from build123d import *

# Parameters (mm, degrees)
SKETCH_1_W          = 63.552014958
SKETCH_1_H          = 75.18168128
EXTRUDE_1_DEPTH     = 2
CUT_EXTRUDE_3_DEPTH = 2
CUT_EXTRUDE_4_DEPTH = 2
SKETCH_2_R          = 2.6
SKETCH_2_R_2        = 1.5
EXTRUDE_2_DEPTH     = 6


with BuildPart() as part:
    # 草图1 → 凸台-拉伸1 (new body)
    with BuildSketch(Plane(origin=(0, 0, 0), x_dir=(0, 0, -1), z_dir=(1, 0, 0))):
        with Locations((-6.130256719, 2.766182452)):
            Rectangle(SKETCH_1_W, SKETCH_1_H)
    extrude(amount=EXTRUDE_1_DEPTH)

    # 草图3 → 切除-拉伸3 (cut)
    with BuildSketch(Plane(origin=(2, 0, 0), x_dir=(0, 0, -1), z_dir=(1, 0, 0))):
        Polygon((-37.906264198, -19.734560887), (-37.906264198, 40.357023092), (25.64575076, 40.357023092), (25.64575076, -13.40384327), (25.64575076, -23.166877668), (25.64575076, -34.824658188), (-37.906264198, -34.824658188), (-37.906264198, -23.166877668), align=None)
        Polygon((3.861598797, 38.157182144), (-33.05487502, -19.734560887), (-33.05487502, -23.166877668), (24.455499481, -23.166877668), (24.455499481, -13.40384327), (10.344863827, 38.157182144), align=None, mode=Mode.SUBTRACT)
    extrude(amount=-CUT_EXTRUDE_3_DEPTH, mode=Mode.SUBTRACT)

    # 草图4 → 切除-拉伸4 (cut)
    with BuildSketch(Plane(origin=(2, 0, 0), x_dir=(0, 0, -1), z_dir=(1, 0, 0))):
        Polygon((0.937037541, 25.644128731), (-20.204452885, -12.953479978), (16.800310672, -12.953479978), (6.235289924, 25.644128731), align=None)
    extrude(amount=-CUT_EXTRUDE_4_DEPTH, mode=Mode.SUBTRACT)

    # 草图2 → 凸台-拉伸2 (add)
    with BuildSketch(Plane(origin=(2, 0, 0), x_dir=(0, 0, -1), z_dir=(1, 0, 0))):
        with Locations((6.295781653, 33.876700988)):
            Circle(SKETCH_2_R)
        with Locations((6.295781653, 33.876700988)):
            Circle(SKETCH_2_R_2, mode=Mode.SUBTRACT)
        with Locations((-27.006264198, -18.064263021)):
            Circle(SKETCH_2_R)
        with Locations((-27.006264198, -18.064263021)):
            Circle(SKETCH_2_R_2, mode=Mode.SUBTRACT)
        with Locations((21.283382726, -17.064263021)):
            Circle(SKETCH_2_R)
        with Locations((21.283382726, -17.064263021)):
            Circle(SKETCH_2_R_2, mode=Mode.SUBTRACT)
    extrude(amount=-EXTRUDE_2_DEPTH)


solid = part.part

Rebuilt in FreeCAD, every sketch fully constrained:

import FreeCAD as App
import Part
import Sketcher

V = App.Vector

doc = App.newDocument("Part")
body = doc.addObject("PartDesign::Body", "Body")

# Sketch on YZ plane
sketch1 = body.newObject("Sketcher::SketchObject", "Sketch")
sketch1.AttachmentSupport = (doc.getObject("YZ_Plane"), [""])
sketch1.MapMode = "FlatFace"
sketch1.addGeometry([
    Part.LineSegment(V(40.357023, 37.906264, 0), V(-34.824658, 37.906264, 0)),
    Part.LineSegment(V(-34.824658, 37.906264, 0), V(-34.824658, -25.645751, 0)),
    Part.LineSegment(V(-34.824658, -25.645751, 0), V(40.357023, -25.645751, 0)),
    Part.LineSegment(V(40.357023, -25.645751, 0), V(40.357023, 37.906264, 0)),
], False)
sketch1.addConstraint([
    Sketcher.Constraint("Coincident", 0, 2, 1, 1),
    Sketcher.Constraint("Coincident", 1, 2, 2, 1),
    Sketcher.Constraint("Coincident", 2, 2, 3, 1),
    Sketcher.Constraint("Coincident", 3, 2, 0, 1),
    Sketcher.Constraint("Horizontal", 0),
    Sketcher.Constraint("Vertical", 1),
    Sketcher.Constraint("Horizontal", 2),
    Sketcher.Constraint("Vertical", 3),
    Sketcher.Constraint("DistanceX", 0, 2, 0, 1, 75.181681),
    Sketcher.Constraint("DistanceY", 1, 2, 1, 1, 63.552015),
    Sketcher.Constraint("DistanceX", 0, 2, -1, 1, 34.824658),
    Sketcher.Constraint("DistanceY", 1, 2, -1, 1, 25.645751),
])
pad1 = body.newObject("PartDesign::Pad", "Pad")
pad1.Profile = sketch1
pad1.Length = 2

# Sketch on YZ plane
sketch2 = body.newObject("Sketcher::SketchObject", "Sketch001")
sketch2.AttachmentSupport = (doc.getObject("YZ_Plane"), [""])
sketch2.MapMode = "FlatFace"
sketch2.AttachmentOffset = App.Placement(V(0, 0, 2), App.Rotation())
sketch2.addGeometry([
    Part.LineSegment(V(40.357023, 37.906264, 0), V(-34.824658, 37.906264, 0)),  # 0
    Part.LineSegment(V(-34.824658, 37.906264, 0), V(-34.824658, -25.645751, 0)),  # 1
    Part.LineSegment(V(-34.824658, -25.645751, 0), V(40.357023, -25.645751, 0)),  # 2
    Part.LineSegment(V(40.357023, -25.645751, 0), V(40.357023, 37.906264, 0)),  # 3
    Part.LineSegment(V(38.157182, -3.861599, 0), V(38.157182, -10.344864, 0)),  # 4
    Part.LineSegment(V(38.157182, -10.344864, 0), V(-13.403843, -24.455499, 0)),  # 5
    Part.LineSegment(V(-13.403843, -24.455499, 0), V(-23.166878, -24.455499, 0)),  # 6
    Part.LineSegment(V(-23.166878, -24.455499, 0), V(-23.166878, 33.054875, 0)),  # 7
    Part.LineSegment(V(-23.166878, 33.054875, 0), V(-19.734561, 33.054875, 0)),  # 8
    Part.LineSegment(V(-19.734561, 33.054875, 0), V(38.157182, -3.861599, 0)),  # 9
], False)
sketch2.addConstraint([
    Sketcher.Constraint("Coincident", 0, 2, 1, 1),
    Sketcher.Constraint("Coincident", 1, 2, 2, 1),
    Sketcher.Constraint("Coincident", 2, 2, 3, 1),
    Sketcher.Constraint("Coincident", 3, 2, 0, 1),
    Sketcher.Constraint("Coincident", 4, 2, 5, 1),
    Sketcher.Constraint("Coincident", 5, 2, 6, 1),
    Sketcher.Constraint("Coincident", 6, 2, 7, 1),
    Sketcher.Constraint("Coincident", 7, 2, 8, 1),
    Sketcher.Constraint("Coincident", 8, 2, 9, 1),
    Sketcher.Constraint("Coincident", 9, 2, 4, 1),
    Sketcher.Constraint("Horizontal", 0),
    Sketcher.Constraint("Vertical", 1),
    Sketcher.Constraint("Horizontal", 2),
    Sketcher.Constraint("Vertical", 3),
    Sketcher.Constraint("Vertical", 4),
    Sketcher.Constraint("Horizontal", 6),
    Sketcher.Constraint("Vertical", 7),
    Sketcher.Constraint("Horizontal", 8),
    Sketcher.Constraint("DistanceX", 0, 2, 0, 1, 75.181681),
    Sketcher.Constraint("DistanceY", 5, 2, -1, 1, 24.455499),
    Sketcher.Constraint("DistanceY", 9, 2, -1, 1, 3.861599),
    Sketcher.Constraint("DistanceX", 6, 2, 2, 2, 63.523901),
    Sketcher.Constraint("DistanceX", 6, 2, 6, 1, 9.763034),
    Sketcher.Constraint("DistanceX", 8, 1, 8, 2, 3.432317),
    Sketcher.Constraint("DistanceY", 1, 2, 1, 1, 63.552015),
    Sketcher.Constraint("DistanceY", 4, 2, 4, 1, 6.483265),
    Sketcher.Constraint("DistanceY", 7, 1, 7, 2, 57.510375),
    Sketcher.Constraint("DistanceX", 0, 2, -1, 1, 34.824658),
    Sketcher.Constraint("DistanceY", 1, 2, -1, 1, 25.645751),
    Sketcher.Constraint("DistanceX", 4, 2, 2, 2, 2.199841),
])
pocket1 = body.newObject("PartDesign::Pocket", "Pocket")
pocket1.Profile = sketch2
pocket1.Length = 2

# Sketch on YZ plane
sketch3 = body.newObject("Sketcher::SketchObject", "Sketch002")
sketch3.AttachmentSupport = (doc.getObject("YZ_Plane"), [""])
sketch3.MapMode = "FlatFace"
sketch3.AttachmentOffset = App.Placement(V(0, 0, 2), App.Rotation())
sketch3.addGeometry([
    Part.LineSegment(V(25.644129, -0.937038, 0), V(-12.95348, 20.204453, 0)),
    Part.LineSegment(V(-12.95348, 20.204453, 0), V(-12.95348, -16.800311, 0)),
    Part.LineSegment(V(-12.95348, -16.800311, 0), V(25.644129, -6.23529, 0)),
    Part.LineSegment(V(25.644129, -6.23529, 0), V(25.644129, -0.937038, 0)),
], False)
sketch3.addConstraint([
    Sketcher.Constraint("Coincident", 0, 2, 1, 1),
    Sketcher.Constraint("Coincident", 1, 2, 2, 1),
    Sketcher.Constraint("Coincident", 2, 2, 3, 1),
    Sketcher.Constraint("Coincident", 3, 2, 0, 1),
    Sketcher.Constraint("Vertical", 1),
    Sketcher.Constraint("Vertical", 3),
    Sketcher.Constraint("DistanceY", 1, 2, 1, 1, 37.004764),
    Sketcher.Constraint("DistanceY", 3, 1, 3, 2, 5.298252),
    Sketcher.Constraint("DistanceX", 0, 2, -1, 1, 12.95348),
    Sketcher.Constraint("DistanceY", 1, 2, -1, 1, 16.800311),
    Sketcher.Constraint("DistanceX", -1, 1, 2, 2, 25.644129),
    Sketcher.Constraint("DistanceY", 2, 2, -1, 1, 6.23529),
])
pocket2 = body.newObject("PartDesign::Pocket", "Pocket001")
pocket2.Profile = sketch3
pocket2.Length = 2

# Sketch on YZ plane
sketch4 = body.newObject("Sketcher::SketchObject", "Sketch003")
sketch4.AttachmentSupport = (doc.getObject("YZ_Plane"), [""])
sketch4.MapMode = "FlatFace"
sketch4.AttachmentOffset = App.Placement(V(0, 0, 2), App.Rotation())
sketch4.addGeometry([
    Part.Circle(V(33.876701, -6.295782, 0), V(0, 0, 1), 2.6),  # 0
    Part.Circle(V(33.876701, -6.295782, 0), V(0, 0, 1), 1.5),  # 1
    Part.Circle(V(-18.064263, 27.006264, 0), V(0, 0, 1), 2.6),  # 2
    Part.Circle(V(-18.064263, 27.006264, 0), V(0, 0, 1), 1.5),  # 3
    Part.Circle(V(-17.064263, -21.283383, 0), V(0, 0, 1), 2.6),  # 4
    Part.Circle(V(-17.064263, -21.283383, 0), V(0, 0, 1), 1.5),  # 5
], False)
sketch4.addConstraint([
    Sketcher.Constraint("Coincident", 1, 3, 0, 3),
    Sketcher.Constraint("Coincident", 3, 3, 2, 3),
    Sketcher.Constraint("Coincident", 5, 3, 4, 3),
    Sketcher.Constraint("Equal", 0, 2),
    Sketcher.Constraint("Equal", 1, 3),
    Sketcher.Constraint("Equal", 2, 4),
    Sketcher.Constraint("Equal", 3, 5),
    Sketcher.Constraint("Diameter", 1, 3.0),
    Sketcher.Constraint("Diameter", 0, 5.2),
    Sketcher.Constraint("DistanceX", 2, 3, 4, 3, 1.0),
    Sketcher.Constraint("DistanceX", -1, 1, 0, 3, 33.876701),
    Sketcher.Constraint("DistanceY", 4, 3, 0, 3, 14.987601),
    Sketcher.Constraint("DistanceY", 0, 3, -1, 1, 6.295782),
    Sketcher.Constraint("DistanceX", 2, 3, -1, 1, 18.064263),
    Sketcher.Constraint("DistanceY", -1, 1, 2, 3, 27.006264),
])
pad2 = body.newObject("PartDesign::Pad", "Pad001")
pad2.Profile = sketch4
pad2.Length = 6
pad2.Reversed = True

doc.recompute()
